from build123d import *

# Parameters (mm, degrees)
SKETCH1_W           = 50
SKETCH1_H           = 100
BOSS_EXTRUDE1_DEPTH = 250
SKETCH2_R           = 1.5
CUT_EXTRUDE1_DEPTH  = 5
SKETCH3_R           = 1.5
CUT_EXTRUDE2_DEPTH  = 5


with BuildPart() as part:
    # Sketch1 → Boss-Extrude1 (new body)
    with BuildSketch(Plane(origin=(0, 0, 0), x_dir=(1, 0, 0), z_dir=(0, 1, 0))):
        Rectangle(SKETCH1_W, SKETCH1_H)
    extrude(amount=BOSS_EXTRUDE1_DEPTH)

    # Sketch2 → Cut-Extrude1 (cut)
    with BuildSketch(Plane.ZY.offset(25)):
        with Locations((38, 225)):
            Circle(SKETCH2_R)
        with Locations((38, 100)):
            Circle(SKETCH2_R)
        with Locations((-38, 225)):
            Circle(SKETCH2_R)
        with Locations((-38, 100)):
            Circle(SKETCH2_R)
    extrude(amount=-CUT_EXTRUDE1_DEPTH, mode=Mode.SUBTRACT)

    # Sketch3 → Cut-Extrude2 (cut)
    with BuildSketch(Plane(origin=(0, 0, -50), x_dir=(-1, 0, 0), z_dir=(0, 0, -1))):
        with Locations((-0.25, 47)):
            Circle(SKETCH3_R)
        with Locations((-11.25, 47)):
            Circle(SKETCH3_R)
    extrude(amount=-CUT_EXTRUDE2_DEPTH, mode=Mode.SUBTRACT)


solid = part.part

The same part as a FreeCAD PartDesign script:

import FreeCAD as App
import Part
import Sketcher

V = App.Vector

doc = App.newDocument("Part")
body = doc.addObject("PartDesign::Body", "Body")

# Sketch on XZ plane
sketch1 = body.newObject("Sketcher::SketchObject", "Sketch")
sketch1.AttachmentSupport = (doc.getObject("XZ_Plane"), [""])
sketch1.MapMode = "FlatFace"
sketch1.addGeometry([
    Part.LineSegment(V(-25, -50, 0), V(-25, 50, 0)),
    Part.LineSegment(V(-25, 50, 0), V(25, 50, 0)),
    Part.LineSegment(V(25, 50, 0), V(25, -50, 0)),
    Part.LineSegment(V(25, -50, 0), V(-25, -50, 0)),
], False)
sketch1.addConstraint([
    Sketcher.Constraint("Coincident", 0, 2, 1, 1),
    Sketcher.Constraint("Coincident", 1, 2, 2, 1),
    Sketcher.Constraint("Coincident", 2, 2, 3, 1),
    Sketcher.Constraint("Coincident", 3, 2, 0, 1),
    Sketcher.Constraint("Vertical", 0),
    Sketcher.Constraint("Horizontal", 1),
    Sketcher.Constraint("Vertical", 2),
    Sketcher.Constraint("Horizontal", 3),
    Sketcher.Constraint("Symmetric", 0, 2, 2, 2, -1, 1),
    Sketcher.Constraint("DistanceX", 1, 1, 1, 2, 50.0),
    Sketcher.Constraint("DistanceY", 0, 1, 0, 2, 100.0),
])
pad1 = body.newObject("PartDesign::Pad", "Pad")
pad1.Profile = sketch1
pad1.Length = 250
pad1.Reversed = True

# Sketch on YZ plane
sketch2 = body.newObject("Sketcher::SketchObject", "Sketch001")
sketch2.AttachmentSupport = (doc.getObject("YZ_Plane"), [""])
sketch2.MapMode = "FlatFace"
sketch2.AttachmentOffset = App.Placement(V(0, 0, -25), App.Rotation())
sketch2.addGeometry([
    Part.Circle(V(225, 38, 0), V(0, 0, 1), 1.5),
    Part.Circle(V(100, 38, 0), V(0, 0, 1), 1.5),
    Part.Circle(V(225, -38, 0), V(0, 0, 1), 1.5),
    Part.Circle(V(100, -38, 0), V(0, 0, 1), 1.5),
], False)
sketch2.addConstraint([
    Sketcher.Constraint("Equal", 0, 1),
    Sketcher.Constraint("Equal", 1, 2),
    Sketcher.Constraint("Equal", 2, 3),
    Sketcher.Constraint("Symmetric", 0, 3, 2, 3, -1),
    Sketcher.Constraint("Symmetric", 1, 3, 3, 3, -1),
    Sketcher.Constraint("Horizontal", 0, 3, 1, 3),
    Sketcher.Constraint("Diameter", 0, 3.0),
    Sketcher.Constraint("DistanceX", -1, 1, 0, 3, 225.0),
    Sketcher.Constraint("DistanceY", -1, 1, 0, 3, 38.0),
    Sketcher.Constraint("DistanceX", -1, 1, 1, 3, 100.0),
])
pocket1 = body.newObject("PartDesign::Pocket", "Pocket")
pocket1.Profile = sketch2
pocket1.Length = 5
pocket1.Reversed = True

# Sketch on XY plane
sketch3 = body.newObject("Sketcher::SketchObject", "Sketch002")
sketch3.AttachmentSupport = (doc.getObject("XY_Plane"), [""])
sketch3.MapMode = "FlatFace"
sketch3.AttachmentOffset = App.Placement(V(0, 0, -50), App.Rotation())
sketch3.addGeometry([
    Part.Circle(V(0.2, 47, 0), V(0, 0, 1), 1.5),
    Part.Circle(V(11.2, 47, 0), V(0, 0, 1), 1.5),
], False)
sketch3.addConstraint([
    Sketcher.Constraint("Equal", 0, 1),
    Sketcher.Constraint("Horizontal", 0, 3, 1, 3),
    Sketcher.Constraint("Diameter", 0, 3.0),
    Sketcher.Constraint("DistanceY", -1, 1, 0, 3, 47.0),
    Sketcher.Constraint("DistanceX", 0, 3, 1, 3, 11.0),
    Sketcher.Constraint("DistanceX", -1, 1, 0, 3, 0.25),
])
pocket2 = body.newObject("PartDesign::Pocket", "Pocket001")
pocket2.Profile = sketch3
pocket2.Length = 5
pocket2.Reversed = True

doc.recompute()
